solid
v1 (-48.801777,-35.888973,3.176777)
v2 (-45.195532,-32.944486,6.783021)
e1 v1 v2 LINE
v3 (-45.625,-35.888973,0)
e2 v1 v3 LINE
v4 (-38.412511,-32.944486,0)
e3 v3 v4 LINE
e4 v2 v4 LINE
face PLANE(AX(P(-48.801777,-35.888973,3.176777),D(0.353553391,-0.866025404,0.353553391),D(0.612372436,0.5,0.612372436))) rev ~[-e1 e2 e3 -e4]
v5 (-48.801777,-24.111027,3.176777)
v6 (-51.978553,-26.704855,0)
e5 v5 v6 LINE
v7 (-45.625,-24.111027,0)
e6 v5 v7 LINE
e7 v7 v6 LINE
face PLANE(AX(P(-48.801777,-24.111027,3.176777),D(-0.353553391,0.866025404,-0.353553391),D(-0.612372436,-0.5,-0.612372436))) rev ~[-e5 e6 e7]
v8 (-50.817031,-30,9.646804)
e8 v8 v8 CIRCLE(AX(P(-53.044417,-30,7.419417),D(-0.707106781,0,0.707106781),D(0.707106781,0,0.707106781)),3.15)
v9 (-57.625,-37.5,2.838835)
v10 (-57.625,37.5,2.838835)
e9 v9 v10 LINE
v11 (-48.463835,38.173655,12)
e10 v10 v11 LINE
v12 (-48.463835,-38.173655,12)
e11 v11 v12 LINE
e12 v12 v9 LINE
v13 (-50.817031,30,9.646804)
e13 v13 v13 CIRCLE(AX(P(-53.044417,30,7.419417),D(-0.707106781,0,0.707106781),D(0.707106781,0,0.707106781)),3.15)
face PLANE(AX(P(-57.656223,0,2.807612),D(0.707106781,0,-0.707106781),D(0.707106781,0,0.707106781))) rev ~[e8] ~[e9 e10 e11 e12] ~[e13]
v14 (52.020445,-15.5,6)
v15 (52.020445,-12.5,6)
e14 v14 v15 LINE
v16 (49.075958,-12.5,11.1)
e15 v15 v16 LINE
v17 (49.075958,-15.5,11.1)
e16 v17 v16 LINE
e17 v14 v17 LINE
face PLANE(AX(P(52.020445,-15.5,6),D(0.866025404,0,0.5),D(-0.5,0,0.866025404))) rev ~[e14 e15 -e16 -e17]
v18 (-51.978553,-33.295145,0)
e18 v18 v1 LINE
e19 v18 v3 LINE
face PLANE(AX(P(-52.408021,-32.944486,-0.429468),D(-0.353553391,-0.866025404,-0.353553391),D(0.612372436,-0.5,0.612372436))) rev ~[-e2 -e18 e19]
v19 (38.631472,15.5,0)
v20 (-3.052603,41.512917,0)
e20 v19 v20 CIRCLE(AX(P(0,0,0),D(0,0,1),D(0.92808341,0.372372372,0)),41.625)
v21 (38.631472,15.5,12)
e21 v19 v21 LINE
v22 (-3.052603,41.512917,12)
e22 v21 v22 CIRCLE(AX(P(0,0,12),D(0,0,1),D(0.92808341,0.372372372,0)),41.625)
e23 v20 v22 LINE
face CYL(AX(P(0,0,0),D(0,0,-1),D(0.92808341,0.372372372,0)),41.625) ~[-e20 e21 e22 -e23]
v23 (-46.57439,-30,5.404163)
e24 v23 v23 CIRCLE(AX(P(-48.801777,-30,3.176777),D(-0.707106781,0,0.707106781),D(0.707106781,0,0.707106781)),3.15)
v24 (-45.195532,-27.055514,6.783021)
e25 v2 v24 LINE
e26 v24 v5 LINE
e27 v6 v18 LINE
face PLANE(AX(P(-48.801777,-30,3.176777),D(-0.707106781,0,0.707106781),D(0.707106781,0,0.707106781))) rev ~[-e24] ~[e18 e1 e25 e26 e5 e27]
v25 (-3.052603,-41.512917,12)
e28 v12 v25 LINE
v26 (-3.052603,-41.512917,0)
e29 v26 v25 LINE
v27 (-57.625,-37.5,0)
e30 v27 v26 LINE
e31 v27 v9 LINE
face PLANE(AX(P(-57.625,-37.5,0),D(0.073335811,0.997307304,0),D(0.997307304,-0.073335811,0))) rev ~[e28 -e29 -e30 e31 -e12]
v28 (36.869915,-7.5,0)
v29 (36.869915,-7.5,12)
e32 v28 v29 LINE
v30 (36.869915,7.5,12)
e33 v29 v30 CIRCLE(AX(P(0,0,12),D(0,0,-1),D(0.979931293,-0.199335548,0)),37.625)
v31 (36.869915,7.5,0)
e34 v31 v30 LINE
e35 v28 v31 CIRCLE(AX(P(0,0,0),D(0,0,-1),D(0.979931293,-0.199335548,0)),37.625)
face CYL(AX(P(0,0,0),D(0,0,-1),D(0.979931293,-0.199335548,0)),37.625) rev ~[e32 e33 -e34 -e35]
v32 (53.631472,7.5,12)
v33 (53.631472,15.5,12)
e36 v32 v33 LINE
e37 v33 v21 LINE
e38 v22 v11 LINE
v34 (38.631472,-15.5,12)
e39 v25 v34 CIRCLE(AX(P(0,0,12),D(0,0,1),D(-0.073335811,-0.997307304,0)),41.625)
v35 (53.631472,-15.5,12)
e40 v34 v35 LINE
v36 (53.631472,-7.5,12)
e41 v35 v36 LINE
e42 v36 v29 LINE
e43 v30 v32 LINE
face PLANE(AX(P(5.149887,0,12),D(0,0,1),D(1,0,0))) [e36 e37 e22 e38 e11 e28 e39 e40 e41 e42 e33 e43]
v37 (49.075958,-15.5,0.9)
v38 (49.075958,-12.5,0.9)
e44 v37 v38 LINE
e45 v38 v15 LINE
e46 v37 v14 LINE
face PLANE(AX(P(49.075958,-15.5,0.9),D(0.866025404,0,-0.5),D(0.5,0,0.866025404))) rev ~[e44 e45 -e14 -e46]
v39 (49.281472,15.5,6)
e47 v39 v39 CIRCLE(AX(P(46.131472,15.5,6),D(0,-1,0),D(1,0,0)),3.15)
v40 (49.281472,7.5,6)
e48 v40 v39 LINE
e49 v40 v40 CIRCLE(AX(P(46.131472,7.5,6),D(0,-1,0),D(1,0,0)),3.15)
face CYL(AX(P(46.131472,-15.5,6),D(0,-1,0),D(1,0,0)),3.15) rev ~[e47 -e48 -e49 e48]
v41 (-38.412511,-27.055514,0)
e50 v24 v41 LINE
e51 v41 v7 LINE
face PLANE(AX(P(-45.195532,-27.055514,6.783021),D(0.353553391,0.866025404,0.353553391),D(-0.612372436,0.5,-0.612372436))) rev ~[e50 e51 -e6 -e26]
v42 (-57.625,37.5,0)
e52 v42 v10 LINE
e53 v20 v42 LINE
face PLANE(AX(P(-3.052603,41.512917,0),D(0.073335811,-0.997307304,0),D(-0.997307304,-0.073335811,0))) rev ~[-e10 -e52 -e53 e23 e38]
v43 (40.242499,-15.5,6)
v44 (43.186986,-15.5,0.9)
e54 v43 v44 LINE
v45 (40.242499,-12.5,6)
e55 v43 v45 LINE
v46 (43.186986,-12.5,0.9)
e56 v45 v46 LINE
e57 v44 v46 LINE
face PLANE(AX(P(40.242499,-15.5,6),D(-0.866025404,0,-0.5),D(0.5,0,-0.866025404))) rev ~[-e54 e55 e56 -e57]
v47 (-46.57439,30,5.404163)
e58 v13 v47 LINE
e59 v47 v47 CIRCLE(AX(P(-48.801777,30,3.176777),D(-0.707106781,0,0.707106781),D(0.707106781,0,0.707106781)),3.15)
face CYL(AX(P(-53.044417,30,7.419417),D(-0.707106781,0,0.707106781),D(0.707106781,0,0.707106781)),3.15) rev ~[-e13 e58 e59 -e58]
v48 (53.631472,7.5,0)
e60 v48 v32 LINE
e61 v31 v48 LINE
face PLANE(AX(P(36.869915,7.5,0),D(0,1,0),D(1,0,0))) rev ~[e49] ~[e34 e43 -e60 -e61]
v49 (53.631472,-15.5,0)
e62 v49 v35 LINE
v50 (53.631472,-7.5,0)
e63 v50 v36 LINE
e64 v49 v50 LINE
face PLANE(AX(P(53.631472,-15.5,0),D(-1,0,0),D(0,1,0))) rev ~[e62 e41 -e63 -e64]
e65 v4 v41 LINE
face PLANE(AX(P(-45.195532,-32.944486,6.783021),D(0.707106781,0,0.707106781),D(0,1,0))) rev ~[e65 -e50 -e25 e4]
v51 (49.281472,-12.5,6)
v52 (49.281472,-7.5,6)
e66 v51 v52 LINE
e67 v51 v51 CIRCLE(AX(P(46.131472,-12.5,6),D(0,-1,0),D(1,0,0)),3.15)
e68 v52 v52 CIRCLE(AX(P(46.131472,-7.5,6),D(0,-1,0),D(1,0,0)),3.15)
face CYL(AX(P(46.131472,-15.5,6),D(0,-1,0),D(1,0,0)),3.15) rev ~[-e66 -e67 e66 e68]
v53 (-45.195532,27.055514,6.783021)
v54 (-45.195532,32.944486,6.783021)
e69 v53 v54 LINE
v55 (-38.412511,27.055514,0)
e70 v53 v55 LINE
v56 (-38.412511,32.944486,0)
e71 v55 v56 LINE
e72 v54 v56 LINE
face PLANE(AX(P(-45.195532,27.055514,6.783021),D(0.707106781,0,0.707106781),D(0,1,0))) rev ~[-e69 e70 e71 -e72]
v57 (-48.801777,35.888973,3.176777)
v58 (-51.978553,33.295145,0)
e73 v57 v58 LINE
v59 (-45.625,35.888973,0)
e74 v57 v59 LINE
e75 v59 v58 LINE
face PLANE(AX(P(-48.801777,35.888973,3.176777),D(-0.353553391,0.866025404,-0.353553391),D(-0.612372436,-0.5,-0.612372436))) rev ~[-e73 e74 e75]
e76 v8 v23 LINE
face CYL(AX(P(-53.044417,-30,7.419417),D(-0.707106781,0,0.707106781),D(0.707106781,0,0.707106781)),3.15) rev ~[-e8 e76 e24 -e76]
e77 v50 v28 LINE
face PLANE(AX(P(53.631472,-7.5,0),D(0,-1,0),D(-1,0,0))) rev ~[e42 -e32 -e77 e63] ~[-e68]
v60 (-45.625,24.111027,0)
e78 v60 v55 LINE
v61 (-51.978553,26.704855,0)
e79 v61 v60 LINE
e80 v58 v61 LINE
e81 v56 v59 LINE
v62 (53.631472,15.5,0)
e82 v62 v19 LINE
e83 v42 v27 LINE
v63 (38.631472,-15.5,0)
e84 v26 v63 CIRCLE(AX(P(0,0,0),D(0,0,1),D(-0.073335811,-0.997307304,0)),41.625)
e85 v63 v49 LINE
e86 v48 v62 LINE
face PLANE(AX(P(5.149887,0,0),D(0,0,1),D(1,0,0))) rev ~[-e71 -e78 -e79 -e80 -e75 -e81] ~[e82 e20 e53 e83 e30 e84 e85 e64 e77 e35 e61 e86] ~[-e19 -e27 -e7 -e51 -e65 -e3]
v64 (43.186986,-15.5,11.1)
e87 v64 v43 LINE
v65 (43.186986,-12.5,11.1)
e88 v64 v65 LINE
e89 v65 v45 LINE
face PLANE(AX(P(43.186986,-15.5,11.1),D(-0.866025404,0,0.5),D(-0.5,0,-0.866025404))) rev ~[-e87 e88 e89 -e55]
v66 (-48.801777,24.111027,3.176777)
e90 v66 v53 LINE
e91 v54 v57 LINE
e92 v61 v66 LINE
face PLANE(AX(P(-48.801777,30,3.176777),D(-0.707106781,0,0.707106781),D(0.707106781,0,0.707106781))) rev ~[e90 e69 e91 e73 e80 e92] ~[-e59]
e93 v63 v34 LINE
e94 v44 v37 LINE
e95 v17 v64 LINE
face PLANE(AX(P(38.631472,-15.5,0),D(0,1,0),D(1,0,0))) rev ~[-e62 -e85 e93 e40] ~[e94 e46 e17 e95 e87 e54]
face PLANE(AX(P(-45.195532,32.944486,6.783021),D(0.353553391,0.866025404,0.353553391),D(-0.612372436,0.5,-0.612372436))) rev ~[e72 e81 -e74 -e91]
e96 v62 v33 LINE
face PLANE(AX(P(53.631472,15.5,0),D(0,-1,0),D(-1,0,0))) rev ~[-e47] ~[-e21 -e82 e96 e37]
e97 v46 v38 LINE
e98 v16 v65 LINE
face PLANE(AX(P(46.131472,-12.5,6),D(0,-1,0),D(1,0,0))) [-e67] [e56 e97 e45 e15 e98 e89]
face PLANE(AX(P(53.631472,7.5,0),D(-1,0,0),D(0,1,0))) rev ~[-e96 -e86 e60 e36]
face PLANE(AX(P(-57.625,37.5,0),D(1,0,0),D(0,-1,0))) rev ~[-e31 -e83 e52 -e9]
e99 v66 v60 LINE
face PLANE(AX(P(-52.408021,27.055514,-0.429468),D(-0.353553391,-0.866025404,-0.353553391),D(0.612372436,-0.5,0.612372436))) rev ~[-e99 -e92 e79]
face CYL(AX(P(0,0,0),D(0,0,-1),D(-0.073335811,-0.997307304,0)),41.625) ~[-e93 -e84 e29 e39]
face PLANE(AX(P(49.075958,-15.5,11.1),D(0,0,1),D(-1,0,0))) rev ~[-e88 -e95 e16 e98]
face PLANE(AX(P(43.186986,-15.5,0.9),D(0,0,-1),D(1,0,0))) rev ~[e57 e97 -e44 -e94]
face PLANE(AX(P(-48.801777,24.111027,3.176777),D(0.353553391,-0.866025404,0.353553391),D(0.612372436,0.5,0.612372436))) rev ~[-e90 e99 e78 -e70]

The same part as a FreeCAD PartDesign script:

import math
import FreeCAD as App
import Part
import Sketcher

V = App.Vector
Q = App.Units.Quantity


def add_polygon(sketch, points):
    """Adds a closed chain of lines whose ends are joined by coincident constraints."""
    first, n = sketch.GeometryCount, len(points)
    for a, b in zip(points, points[1:] + points[:1]):
        sketch.addGeometry(Part.LineSegment(App.Vector(*a, 0), App.Vector(*b, 0)), False)
    for i in range(n):
        sketch.addConstraint(Sketcher.Constraint("Coincident", first + i, 2, first + (i + 1) % n, 1))

doc = App.newDocument("Part")
params = doc.addObject("Spreadsheet::Sheet", "Params")
for row, (alias, value) in enumerate([
    ("sketch1_width", "15 mm"),
    ("sketch1_height", "8 mm"),
    ("sketch1_height2", "75 mm"),
    ("pad1_length", "12 mm"),
    ("sketch2_length", "13 mm"),
    ("pocket1_length", "100 mm"),
    ("sketch3_diameter", "6.3 mm"),
    ("sketch5_diameter", "6.3 mm"),
    ("pocket5_length", "3 mm"),
], start=1):
    params.set(f"A{row}", alias)
    params.set(f"B{row}", "=" + value)
    params.setAlias(f"B{row}", alias)

body = doc.addObject("PartDesign::Body", "Body")

sketch1 = doc.addObject("Sketcher::SketchObject", "Sketch")
body.addObject(sketch1)
sketch1.AttachmentSupport = (doc.XY_Plane, [""])
sketch1.MapMode = "FlatFace"
sketch1.addGeometry(Part.ArcOfCircle(Part.Circle(V(0, 0, 0), V(0, 0, 1), 38), math.radians(11), math.radians(349)), False)
sketch1.addGeometry(Part.LineSegment(V(37, 8, 0), V(54, 8, 0)), False)
sketch1.addGeometry(Part.LineSegment(V(54, 8, 0), V(54, 16, 0)), False)
sketch1.addGeometry(Part.LineSegment(V(54, 16, 0), V(39, 16, 0)), False)
sketch1.addGeometry(Part.ArcOfCircle(Part.Circle(V(0, 0, 0), V(0, 0, 1), 42), math.radians(22), math.radians(94)), False)
sketch1.addGeometry(Part.LineSegment(V(-3, 42, 0), V(-58, 38, 0)), False)
sketch1.addGeometry(Part.LineSegment(V(-58, 38, 0), V(-58, -38, 0)), False)
sketch1.addGeometry(Part.LineSegment(V(-58, -38, 0), V(-3, -42, 0)), False)
sketch1.addGeometry(Part.ArcOfCircle(Part.Circle(V(0, 0, 0), V(0, 0, 1), 42), math.radians(-94), math.radians(-22)), False)
sketch1.addGeometry(Part.LineSegment(V(39, -16, 0), V(54, -16, 0)), False)
sketch1.addGeometry(Part.LineSegment(V(54, -16, 0), V(54, -8, 0)), False)
sketch1.addGeometry(Part.LineSegment(V(54, -8, 0), V(37, -8, 0)), False)
sketch1.addConstraint(Sketcher.Constraint("Coincident", 0, 1, 1, 1))
sketch1.addConstraint(Sketcher.Constraint("Coincident", 1, 2, 2, 1))
sketch1.addConstraint(Sketcher.Constraint("Coincident", 2, 2, 3, 1))
sketch1.addConstraint(Sketcher.Constraint("Coincident", 3, 2, 4, 1))
sketch1.addConstraint(Sketcher.Constraint("Tangent", 4, 2, 5, 1))
sketch1.addConstraint(Sketcher.Constraint("Coincident", 5, 2, 6, 1))
sketch1.addConstraint(Sketcher.Constraint("Coincident", 6, 2, 7, 1))
sketch1.addConstraint(Sketcher.Constraint("Tangent", 7, 2, 8, 1))
sketch1.addConstraint(Sketcher.Constraint("Coincident", 8, 2, 9, 1))
sketch1.addConstraint(Sketcher.Constraint("Coincident", 9, 2, 10, 1))
sketch1.addConstraint(Sketcher.Constraint("Coincident", 10, 2, 11, 1))
sketch1.addConstraint(Sketcher.Constraint("Coincident", 11, 2, 0, 2))
sketch1.addConstraint(Sketcher.Constraint("Horizontal", 1))
sketch1.addConstraint(Sketcher.Constraint("Vertical", 2))
sketch1.addConstraint(Sketcher.Constraint("Horizontal", 3))
sketch1.addConstraint(Sketcher.Constraint("Vertical", 6))
sketch1.addConstraint(Sketcher.Constraint("Horizontal", 9))
sketch1.addConstraint(Sketcher.Constraint("Vertical", 10))
sketch1.addConstraint(Sketcher.Constraint("Horizontal", 11))
sketch1.addConstraint(Sketcher.Constraint("Coincident", 0, 3, -1, 1))
sketch1.addConstraint(Sketcher.Constraint("Coincident", 4, 3, -1, 1))
sketch1.addConstraint(Sketcher.Constraint("Coincident", 8, 3, -1, 1))
sketch1.addConstraint(Sketcher.Constraint("Equal", 4, 8))
sketch1.addConstraint(Sketcher.Constraint("Symmetric", 2, 2, 9, 2, -1))
sketch1.addConstraint(Sketcher.Constraint("Vertical", 4, 2, 7, 2))
sketch1.addConstraint(Sketcher.Constraint("Vertical", 0, 1, 11, 2))
sketch1.addConstraint(Sketcher.Constraint("DistanceX", 3, 2, 3, 1, Q("15 mm")))
sketch1.addConstraint(Sketcher.Constraint("DistanceY", 2, 1, 2, 2, Q("8 mm")))
sketch1.addConstraint(Sketcher.Constraint("DistanceY", 6, 2, 6, 1, Q("75 mm")))
sketch1.addConstraint(Sketcher.Constraint("Radius", 0, Q("37.625 mm")))
sketch1.addConstraint(Sketcher.Constraint("Radius", 4, Q("41.625 mm")))
sketch1.addConstraint(Sketcher.Constraint("DistanceY", 3, 2, 5, 2, Q("22 mm")))
sketch1.addConstraint(Sketcher.Constraint("DistanceX", 5, 2, -1, 1, Q("57.625 mm")))
sketch1.setExpression("Constraints[26]", "Params.sketch1_width")
sketch1.setExpression("Constraints[27]", "Params.sketch1_height")
sketch1.setExpression("Constraints[28]", "Params.sketch1_height2")
pad1 = doc.addObject("PartDesign::Pad", "Pad")
body.addObject(pad1)
pad1.Profile = sketch1
pad1.setExpression("Length", "Params.pad1_length")

sketch2 = doc.addObject("Sketcher::SketchObject", "Sketch001")
body.addObject(sketch2)
sketch2.AttachmentSupport = (doc.XZ_Plane, [""])
sketch2.MapMode = "FlatFace"
add_polygon(sketch2, [(-58, 26), (-58, 3), (-48, 12), (-48, 26)])
sketch2.addConstraint(Sketcher.Constraint("Vertical", 0))
sketch2.addConstraint(Sketcher.Constraint("Vertical", 2))
sketch2.addConstraint(Sketcher.Constraint("Horizontal", 3))
sketch2.addConstraint(Sketcher.Constraint("Angle", 1, Q("45 deg")))
sketch2.addConstraint(Sketcher.Constraint("Distance", 1, Q("13 mm")))
sketch2.addConstraint(Sketcher.Constraint("DistanceY", -1, 1, 1, 2, Q("12 mm")))
sketch2.addConstraint(Sketcher.Constraint("DistanceY", 0, 2, 0, 1, Q("23.241732 mm")))
sketch2.addConstraint(Sketcher.Constraint("DistanceX", 0, 2, -1, 1, Q("57.656223 mm")))
sketch2.setExpression("Constraints[8]", "Params.sketch2_length")
pocket1 = doc.addObject("PartDesign::Pocket", "Pocket")
body.addObject(pocket1)
pocket1.Profile = sketch2
pocket1.setExpression("Length", "Params.pocket1_length")
pocket1.Midplane = True

sketch3 = doc.addObject("Sketcher::SketchObject", "Sketch002")
body.addObject(sketch3)
sketch3.Placement = App.Placement(V(-30.231917, 0, 30.231917), App.Rotation(V(0.707106781, 0, 0.707106781), V(0, 0.999999999, 0), V(-0.707106781, 0, 0.707106781), "ZXY"))
sketch3.addGeometry(Part.Circle(V(-32.3, 30, 0), V(0, 0, 1), 3.1), False)
sketch3.addGeometry(Part.Circle(V(-32.3, -30, 0), V(0, 0, 1), 3.1), False)
sketch3.addConstraint(Sketcher.Constraint("Equal", 0, 1))
sketch3.addConstraint(Sketcher.Constraint("Symmetric", 0, 3, 1, 3, -1))
sketch3.addConstraint(Sketcher.Constraint("Diameter", 0, Q("6.3 mm")))
sketch3.addConstraint(Sketcher.Constraint("DistanceY", -1, 1, 0, 3, Q("30 mm")))
sketch3.addConstraint(Sketcher.Constraint("DistanceX", 0, 3, -1, 1, Q("32.261747 mm")))
sketch3.setExpression("Constraints[2]", "Params.sketch3_diameter")
pocket2 = doc.addObject("PartDesign::Pocket", "Pocket001")
body.addObject(pocket2)
pocket2.Profile = sketch3
pocket2.Type = "ThroughAll"

sketch4 = doc.addObject("Sketcher::SketchObject", "Sketch003")
body.addObject(sketch4)
sketch4.Placement = App.Placement(V(-25.989277, 0, 25.989277), App.Rotation(V(0.707106781, 0, 0.707106781), V(0, 0.999999999, 0), V(-0.707106781, 0, 0.707106781), "ZXY"))
add_polygon(sketch4, [(-32, 24), (-27, 27), (-27, 33), (-32, 36), (-37, 33), (-37, 27)])
add_polygon(sketch4, [(-32, -36), (-27, -33), (-27, -27), (-32, -24), (-37, -27), (-37, -33)])
sketch4.addConstraint(Sketcher.Constraint("Vertical", 1))
sketch4.addConstraint(Sketcher.Constraint("Vertical", 4))
sketch4.addConstraint(Sketcher.Constraint("Vertical", 7))
sketch4.addConstraint(Sketcher.Constraint("Vertical", 10))
sketch4.addConstraint(Sketcher.Constraint("Symmetric", 1, 2, 6, 2, -1))
sketch4.addConstraint(Sketcher.Constraint("Symmetric", 5, 2, 8, 2, -1))
sketch4.addConstraint(Sketcher.Constraint("Symmetric", 4, 2, 9, 2, -1))
sketch4.addConstraint(Sketcher.Constraint("Symmetric", 2, 2, 11, 2, -1))
sketch4.addConstraint(Sketcher.Constraint("Parallel", 0, 3))
sketch4.addConstraint(Sketcher.Constraint("Parallel", 2, 5))
sketch4.addConstraint(Sketcher.Constraint("Parallel", 3, 6))
sketch4.addConstraint(Sketcher.Constraint("Parallel", 5, 8))
sketch4.addConstraint(Sketcher.Constraint("Parallel", 8, 11))
sketch4.addConstraint(Sketcher.Constraint("Horizontal", 1, 2, 3, 2))
sketch4.addConstraint(Sketcher.Constraint("Horizontal", 0, 2, 4, 2))
sketch4.addConstraint(Sketcher.Constraint("Angle", 0, Q("30 deg")))
sketch4.addConstraint(Sketcher.Constraint("DistanceY", 6, 2, 0, 2, Q("60 mm")))
sketch4.addConstraint(Sketcher.Constraint("DistanceX", 2, 2, 1, 2, Q("5.1 mm")))
sketch4.addConstraint(Sketcher.Constraint("DistanceY", 1, 1, 1, 2, Q("5.888973 mm")))
sketch4.addConstraint(Sketcher.Constraint("DistanceX", 0, 2, -1, 1, Q("27.161747 mm")))
pocket3 = doc.addObject("PartDesign::Pocket", "Pocket002")
body.addObject(pocket3)
pocket3.Profile = sketch4
pocket3.Type = "ThroughAll"

sketch5 = doc.addObject("Sketcher::SketchObject", "Sketch004")
body.addObject(sketch5)
sketch5.AttachmentSupport = (doc.XZ_Plane, [""])
sketch5.MapMode = "FlatFace"
sketch5.AttachmentOffset = App.Placement(V(0, 0, 15.5), App.Rotation())
sketch5.addGeometry(Part.Circle(V(46.1, 6, 0), V(0, 0, 1), 3.1), False)
sketch5.addConstraint(Sketcher.Constraint("Diameter", 0, Q("6.3 mm")))
sketch5.addConstraint(Sketcher.Constraint("DistanceY", -1, 1, 0, 3, Q("6 mm")))
sketch5.addConstraint(Sketcher.Constraint("DistanceX", -1, 1, 0, 3, Q("46.131472 mm")))
sketch5.setExpression("Constraints[0]", "Params.sketch5_diameter")
pocket4 = doc.addObject("PartDesign::Pocket", "Pocket003")
body.addObject(pocket4)
pocket4.Profile = sketch5
pocket4.Type = "ThroughAll"

sketch6 = doc.addObject("Sketcher::SketchObject", "Sketch005")
body.addObject(sketch6)
sketch6.AttachmentSupport = (doc.XZ_Plane, [""])
sketch6.MapMode = "FlatFace"
sketch6.AttachmentOffset = App.Placement(V(0, 0, 15.5), App.Rotation())
add_polygon(sketch6, [(49, 1), (52, 6), (49, 11), (43, 11), (40, 6), (43, 1)])
sketch6.addConstraint(Sketcher.Constraint("Horizontal", 2))
sketch6.addConstraint(Sketcher.Constraint("Horizontal", 5))
sketch6.addConstraint(Sketcher.Constraint("Parallel", 0, 3))
sketch6.addConstraint(Sketcher.Constraint("Parallel", 1, 4))
sketch6.addConstraint(Sketcher.Constraint("Horizontal", 0, 2, 3, 2))
sketch6.addConstraint(Sketcher.Constraint("Vertical", 2, 2, 4, 2))
sketch6.addConstraint(Sketcher.Constraint("Vertical", 1, 2, 5, 2))
sketch6.addConstraint(Sketcher.Constraint("Angle", 0, Q("60 deg")))
sketch6.addConstraint(Sketcher.Constraint("DistanceY", -1, 1, 0, 2, Q("6 mm")))
sketch6.addConstraint(Sketcher.Constraint("DistanceY", -1, 1, 1, 2, Q("11.1 mm")))
sketch6.addConstraint(Sketcher.Constraint("DistanceX", -1, 1, 3, 2, Q("40.242499 mm")))
sketch6.addConstraint(Sketcher.Constraint("DistanceX", 2, 2, 2, 1, Q("5.888973 mm")))
pocket5 = doc.addObject("PartDesign::Pocket", "Pocket004")
body.addObject(pocket5)
pocket5.Profile = sketch6
pocket5.setExpression("Length", "Params.pocket5_length")

doc.recompute()
